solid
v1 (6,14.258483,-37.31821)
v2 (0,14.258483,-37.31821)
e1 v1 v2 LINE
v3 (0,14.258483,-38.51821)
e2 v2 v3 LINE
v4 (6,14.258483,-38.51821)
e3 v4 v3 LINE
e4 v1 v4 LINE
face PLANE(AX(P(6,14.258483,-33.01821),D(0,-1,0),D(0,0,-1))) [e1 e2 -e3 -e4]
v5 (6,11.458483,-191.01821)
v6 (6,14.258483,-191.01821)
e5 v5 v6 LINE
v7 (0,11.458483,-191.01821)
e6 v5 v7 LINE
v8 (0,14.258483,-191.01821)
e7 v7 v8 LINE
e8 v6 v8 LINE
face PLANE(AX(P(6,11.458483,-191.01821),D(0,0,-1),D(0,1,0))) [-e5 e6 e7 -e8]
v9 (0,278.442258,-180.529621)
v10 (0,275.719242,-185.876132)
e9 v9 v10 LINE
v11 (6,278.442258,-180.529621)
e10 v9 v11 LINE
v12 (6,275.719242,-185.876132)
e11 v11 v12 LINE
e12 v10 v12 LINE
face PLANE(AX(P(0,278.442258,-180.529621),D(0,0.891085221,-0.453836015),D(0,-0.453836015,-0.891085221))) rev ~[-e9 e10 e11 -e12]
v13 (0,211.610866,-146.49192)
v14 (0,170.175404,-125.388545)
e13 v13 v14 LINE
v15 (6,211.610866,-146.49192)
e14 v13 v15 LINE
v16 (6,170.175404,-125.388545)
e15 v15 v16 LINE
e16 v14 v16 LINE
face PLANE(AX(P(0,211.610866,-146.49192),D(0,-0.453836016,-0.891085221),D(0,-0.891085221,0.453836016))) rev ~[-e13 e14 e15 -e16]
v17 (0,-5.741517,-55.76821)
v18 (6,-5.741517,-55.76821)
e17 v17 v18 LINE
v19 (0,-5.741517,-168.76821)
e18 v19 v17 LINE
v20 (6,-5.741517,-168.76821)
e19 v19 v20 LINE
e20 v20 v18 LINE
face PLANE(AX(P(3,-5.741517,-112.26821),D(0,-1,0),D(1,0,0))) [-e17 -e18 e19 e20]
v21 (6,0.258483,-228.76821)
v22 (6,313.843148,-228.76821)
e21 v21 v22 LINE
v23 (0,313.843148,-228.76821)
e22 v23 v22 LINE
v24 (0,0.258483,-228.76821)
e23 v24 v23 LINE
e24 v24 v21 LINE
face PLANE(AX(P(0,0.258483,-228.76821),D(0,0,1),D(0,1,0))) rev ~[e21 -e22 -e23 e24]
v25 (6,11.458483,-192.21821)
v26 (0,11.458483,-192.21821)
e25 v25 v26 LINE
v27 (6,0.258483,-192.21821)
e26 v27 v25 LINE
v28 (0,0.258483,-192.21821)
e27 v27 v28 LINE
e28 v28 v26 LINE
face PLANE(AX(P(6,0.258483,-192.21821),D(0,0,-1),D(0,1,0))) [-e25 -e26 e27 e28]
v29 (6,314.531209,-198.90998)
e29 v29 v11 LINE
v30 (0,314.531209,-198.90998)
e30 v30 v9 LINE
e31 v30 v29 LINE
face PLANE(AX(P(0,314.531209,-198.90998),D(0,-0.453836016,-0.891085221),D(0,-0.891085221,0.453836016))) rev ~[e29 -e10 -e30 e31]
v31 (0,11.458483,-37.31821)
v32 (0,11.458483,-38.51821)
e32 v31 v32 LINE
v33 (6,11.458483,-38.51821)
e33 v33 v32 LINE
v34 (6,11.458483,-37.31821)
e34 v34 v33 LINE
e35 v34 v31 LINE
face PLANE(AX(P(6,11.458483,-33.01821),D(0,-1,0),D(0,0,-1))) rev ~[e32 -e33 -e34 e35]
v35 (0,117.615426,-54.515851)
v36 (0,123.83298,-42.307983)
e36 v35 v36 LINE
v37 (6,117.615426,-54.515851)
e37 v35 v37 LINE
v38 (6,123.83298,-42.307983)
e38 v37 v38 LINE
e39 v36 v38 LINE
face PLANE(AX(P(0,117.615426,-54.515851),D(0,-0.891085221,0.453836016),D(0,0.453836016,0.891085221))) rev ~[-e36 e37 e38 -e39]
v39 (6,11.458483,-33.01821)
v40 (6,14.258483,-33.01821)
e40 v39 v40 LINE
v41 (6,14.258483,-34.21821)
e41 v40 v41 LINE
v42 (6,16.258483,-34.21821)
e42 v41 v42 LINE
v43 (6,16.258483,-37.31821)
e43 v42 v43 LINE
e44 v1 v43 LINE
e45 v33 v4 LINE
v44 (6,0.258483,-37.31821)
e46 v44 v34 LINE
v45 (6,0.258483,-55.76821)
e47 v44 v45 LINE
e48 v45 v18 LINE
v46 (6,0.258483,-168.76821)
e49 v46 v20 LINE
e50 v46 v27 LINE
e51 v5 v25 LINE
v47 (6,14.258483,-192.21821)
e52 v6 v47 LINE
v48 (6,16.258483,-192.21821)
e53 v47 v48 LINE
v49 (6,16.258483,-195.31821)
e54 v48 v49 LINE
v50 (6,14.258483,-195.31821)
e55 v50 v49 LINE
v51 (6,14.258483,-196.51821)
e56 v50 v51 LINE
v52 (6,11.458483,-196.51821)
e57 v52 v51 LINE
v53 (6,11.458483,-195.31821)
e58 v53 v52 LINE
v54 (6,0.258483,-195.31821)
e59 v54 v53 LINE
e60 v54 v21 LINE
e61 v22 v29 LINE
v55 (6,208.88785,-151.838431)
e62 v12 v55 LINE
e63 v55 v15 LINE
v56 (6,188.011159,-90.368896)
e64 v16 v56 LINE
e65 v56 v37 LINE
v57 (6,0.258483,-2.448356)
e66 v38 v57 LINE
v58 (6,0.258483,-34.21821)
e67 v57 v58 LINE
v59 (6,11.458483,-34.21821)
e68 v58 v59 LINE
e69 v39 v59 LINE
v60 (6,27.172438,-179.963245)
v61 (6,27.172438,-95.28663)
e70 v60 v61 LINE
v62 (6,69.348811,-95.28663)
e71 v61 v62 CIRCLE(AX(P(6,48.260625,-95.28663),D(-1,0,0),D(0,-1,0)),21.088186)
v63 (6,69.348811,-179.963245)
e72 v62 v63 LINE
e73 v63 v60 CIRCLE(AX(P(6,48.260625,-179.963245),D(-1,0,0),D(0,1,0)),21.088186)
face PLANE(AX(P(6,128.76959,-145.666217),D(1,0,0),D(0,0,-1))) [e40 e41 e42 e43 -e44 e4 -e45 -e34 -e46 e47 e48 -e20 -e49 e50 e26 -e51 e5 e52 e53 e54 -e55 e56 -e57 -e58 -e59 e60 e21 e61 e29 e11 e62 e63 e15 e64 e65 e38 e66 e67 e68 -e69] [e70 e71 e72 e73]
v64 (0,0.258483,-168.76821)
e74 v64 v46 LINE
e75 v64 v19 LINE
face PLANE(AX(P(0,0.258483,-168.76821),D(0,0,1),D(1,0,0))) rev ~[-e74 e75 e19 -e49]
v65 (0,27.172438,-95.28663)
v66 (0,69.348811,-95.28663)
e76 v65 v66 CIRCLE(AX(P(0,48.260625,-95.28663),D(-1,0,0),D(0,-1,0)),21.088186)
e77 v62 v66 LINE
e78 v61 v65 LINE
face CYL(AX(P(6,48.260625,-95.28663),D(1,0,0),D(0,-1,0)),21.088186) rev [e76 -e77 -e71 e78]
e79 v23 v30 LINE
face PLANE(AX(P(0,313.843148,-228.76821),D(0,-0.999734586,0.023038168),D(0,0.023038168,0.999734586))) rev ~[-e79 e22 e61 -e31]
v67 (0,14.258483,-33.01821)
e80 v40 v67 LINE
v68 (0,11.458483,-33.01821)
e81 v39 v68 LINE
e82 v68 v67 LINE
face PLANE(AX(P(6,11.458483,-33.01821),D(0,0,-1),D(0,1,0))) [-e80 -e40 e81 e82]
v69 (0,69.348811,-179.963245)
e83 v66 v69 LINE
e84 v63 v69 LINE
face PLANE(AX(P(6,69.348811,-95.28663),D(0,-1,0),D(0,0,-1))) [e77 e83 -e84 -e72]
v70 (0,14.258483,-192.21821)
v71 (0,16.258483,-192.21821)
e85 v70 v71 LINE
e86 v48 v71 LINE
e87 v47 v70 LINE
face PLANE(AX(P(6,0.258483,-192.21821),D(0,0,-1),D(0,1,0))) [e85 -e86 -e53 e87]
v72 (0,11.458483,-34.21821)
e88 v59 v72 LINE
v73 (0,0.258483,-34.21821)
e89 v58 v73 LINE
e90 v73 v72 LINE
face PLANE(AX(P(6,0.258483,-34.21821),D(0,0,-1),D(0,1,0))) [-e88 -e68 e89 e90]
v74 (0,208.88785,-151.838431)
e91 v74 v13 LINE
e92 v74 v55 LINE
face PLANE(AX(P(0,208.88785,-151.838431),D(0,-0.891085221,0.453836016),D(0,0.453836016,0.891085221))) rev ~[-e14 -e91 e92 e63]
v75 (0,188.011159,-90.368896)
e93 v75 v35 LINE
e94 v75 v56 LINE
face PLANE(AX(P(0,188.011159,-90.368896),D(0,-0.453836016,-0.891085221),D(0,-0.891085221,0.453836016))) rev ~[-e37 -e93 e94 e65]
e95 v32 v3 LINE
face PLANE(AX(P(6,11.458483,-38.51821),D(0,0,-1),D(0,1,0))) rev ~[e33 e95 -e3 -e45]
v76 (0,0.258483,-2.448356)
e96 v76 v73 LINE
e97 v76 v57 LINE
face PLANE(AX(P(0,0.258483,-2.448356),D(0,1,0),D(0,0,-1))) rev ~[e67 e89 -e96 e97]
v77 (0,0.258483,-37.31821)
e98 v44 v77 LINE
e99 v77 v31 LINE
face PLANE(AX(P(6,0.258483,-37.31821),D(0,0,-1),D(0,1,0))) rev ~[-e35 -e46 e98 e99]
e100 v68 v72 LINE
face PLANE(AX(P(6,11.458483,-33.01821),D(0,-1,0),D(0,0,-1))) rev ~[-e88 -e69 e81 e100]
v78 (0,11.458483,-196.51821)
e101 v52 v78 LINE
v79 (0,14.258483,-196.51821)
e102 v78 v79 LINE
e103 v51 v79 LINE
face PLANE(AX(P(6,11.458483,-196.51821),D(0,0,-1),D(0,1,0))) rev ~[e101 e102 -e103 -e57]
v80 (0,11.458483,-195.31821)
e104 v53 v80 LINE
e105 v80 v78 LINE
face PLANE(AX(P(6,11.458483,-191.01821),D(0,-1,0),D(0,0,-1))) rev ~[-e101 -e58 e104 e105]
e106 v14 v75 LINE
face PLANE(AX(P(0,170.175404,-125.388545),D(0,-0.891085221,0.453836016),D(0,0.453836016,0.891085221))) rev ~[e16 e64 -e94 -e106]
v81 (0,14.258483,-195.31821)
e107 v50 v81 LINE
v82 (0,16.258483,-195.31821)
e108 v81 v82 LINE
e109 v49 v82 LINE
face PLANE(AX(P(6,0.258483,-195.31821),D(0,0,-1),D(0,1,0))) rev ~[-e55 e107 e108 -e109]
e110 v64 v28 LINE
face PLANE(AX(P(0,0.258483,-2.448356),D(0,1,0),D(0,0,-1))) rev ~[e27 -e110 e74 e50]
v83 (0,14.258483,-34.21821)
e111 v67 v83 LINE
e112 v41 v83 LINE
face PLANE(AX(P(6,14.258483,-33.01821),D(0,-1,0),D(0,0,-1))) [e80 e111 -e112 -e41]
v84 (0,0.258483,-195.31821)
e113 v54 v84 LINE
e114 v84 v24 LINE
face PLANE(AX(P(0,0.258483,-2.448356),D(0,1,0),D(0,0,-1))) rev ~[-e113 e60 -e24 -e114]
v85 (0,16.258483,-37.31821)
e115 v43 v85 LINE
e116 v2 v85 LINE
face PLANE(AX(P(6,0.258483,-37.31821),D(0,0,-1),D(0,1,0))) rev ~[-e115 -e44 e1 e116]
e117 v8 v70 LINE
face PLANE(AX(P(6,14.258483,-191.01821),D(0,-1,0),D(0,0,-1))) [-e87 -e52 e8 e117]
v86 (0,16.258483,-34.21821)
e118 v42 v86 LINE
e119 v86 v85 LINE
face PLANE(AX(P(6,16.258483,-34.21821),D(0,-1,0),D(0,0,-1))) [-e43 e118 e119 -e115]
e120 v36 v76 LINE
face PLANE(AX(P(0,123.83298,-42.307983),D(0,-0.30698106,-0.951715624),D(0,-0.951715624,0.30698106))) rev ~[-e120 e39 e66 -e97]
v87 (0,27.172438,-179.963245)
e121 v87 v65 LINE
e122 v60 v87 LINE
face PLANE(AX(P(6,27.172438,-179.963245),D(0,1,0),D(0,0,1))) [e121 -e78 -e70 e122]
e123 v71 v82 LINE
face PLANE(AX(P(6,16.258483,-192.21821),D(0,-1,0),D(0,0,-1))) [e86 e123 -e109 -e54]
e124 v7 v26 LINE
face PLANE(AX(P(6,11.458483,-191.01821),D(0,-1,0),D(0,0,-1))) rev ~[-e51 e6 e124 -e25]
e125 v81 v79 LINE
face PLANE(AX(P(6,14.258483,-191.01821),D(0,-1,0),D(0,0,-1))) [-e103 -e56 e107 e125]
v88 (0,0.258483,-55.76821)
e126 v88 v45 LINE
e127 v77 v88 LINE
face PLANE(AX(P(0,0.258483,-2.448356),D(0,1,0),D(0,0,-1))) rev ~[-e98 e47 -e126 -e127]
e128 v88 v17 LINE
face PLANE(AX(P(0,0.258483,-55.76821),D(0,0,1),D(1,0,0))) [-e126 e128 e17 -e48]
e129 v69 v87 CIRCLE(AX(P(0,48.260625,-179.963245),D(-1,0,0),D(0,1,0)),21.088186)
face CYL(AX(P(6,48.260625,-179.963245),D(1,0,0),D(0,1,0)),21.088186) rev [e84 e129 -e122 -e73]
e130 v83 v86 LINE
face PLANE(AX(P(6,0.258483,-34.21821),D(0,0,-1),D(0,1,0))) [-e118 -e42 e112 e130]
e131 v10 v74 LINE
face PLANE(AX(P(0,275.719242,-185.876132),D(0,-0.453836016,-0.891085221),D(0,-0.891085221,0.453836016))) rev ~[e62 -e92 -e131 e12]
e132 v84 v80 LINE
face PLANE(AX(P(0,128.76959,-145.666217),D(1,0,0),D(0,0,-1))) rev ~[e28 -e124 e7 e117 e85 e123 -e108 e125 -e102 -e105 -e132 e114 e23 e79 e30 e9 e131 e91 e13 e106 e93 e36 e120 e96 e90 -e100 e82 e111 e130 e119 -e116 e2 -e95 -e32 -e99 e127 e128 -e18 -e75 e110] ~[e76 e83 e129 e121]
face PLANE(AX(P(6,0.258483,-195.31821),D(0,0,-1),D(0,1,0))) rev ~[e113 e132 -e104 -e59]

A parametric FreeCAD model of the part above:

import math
import FreeCAD as App
import Part
import Sketcher

V = App.Vector
Q = App.Units.Quantity

doc = App.newDocument("Part")
body = doc.addObject("PartDesign::Body", "Body")

# Sketch on YZ plane
sketch1 = doc.addObject("Sketcher::SketchObject", "Sketch")
body.addObject(sketch1)
sketch1.AttachmentSupport = (doc.YZ_Plane, [""])
sketch1.MapMode = "FlatFace"
sketch1.addGeometry([
    Part.LineSegment(V(123.83298, -42.307983, 0), V(0.258483, -2.448356, 0)),  # 0
    Part.LineSegment(V(0.258483, -2.448356, 0), V(0.258483, -228.76821, 0)),  # 1
    Part.LineSegment(V(0.258483, -228.76821, 0), V(313.843148, -228.76821, 0)),  # 2
    Part.LineSegment(V(313.843148, -228.76821, 0), V(314.531209, -198.90998, 0)),  # 3
    Part.LineSegment(V(314.531209, -198.90998, 0), V(278.442258, -180.529621, 0)),  # 4
    Part.LineSegment(V(278.442258, -180.529621, 0), V(275.719242, -185.876132, 0)),  # 5
    Part.LineSegment(V(275.719242, -185.876132, 0), V(208.88785, -151.838431, 0)),  # 6
    Part.LineSegment(V(208.88785, -151.838431, 0), V(211.610866, -146.49192, 0)),  # 7
    Part.LineSegment(V(211.610866, -146.49192, 0), V(170.175404, -125.388545, 0)),  # 8
    Part.LineSegment(V(170.175404, -125.388545, 0), V(188.011159, -90.368896, 0)),  # 9
    Part.LineSegment(V(188.011159, -90.368896, 0), V(117.615426, -54.515851, 0)),  # 10
    Part.LineSegment(V(117.615426, -54.515851, 0), V(123.83298, -42.307983, 0)),  # 11
], False)
sketch1.addConstraint([
    Sketcher.Constraint("Coincident", 0, 2, 1, 1),
    Sketcher.Constraint("Coincident", 1, 2, 2, 1),
    Sketcher.Constraint("Coincident", 2, 2, 3, 1),
    Sketcher.Constraint("Coincident", 3, 2, 4, 1),
    Sketcher.Constraint("Coincident", 4, 2, 5, 1),
    Sketcher.Constraint("Coincident", 5, 2, 6, 1),
    Sketcher.Constraint("Coincident", 6, 2, 7, 1),
    Sketcher.Constraint("Coincident", 7, 2, 8, 1),
    Sketcher.Constraint("Coincident", 8, 2, 9, 1),
    Sketcher.Constraint("Coincident", 9, 2, 10, 1),
    Sketcher.Constraint("Coincident", 10, 2, 11, 1),
    Sketcher.Constraint("Coincident", 11, 2, 0, 1),
    Sketcher.Constraint("Vertical", 1),
    Sketcher.Constraint("Horizontal", 2),
    Sketcher.Constraint("Perpendicular", 4, 5),
    Sketcher.Constraint("Perpendicular", 5, 6),
    Sketcher.Constraint("Perpendicular", 6, 7),
    Sketcher.Constraint("Perpendicular", 7, 8),
    Sketcher.Constraint("Perpendicular", 8, 9),
    Sketcher.Constraint("Perpendicular", 9, 10),
    Sketcher.Constraint("Perpendicular", 10, 11),
    Sketcher.Constraint("Equal", 5, 7),
    Sketcher.Constraint("Distance", 5, Q("6 mm")),
    Sketcher.Constraint("Distance", 6, Q("75 mm")),
    Sketcher.Constraint("Distance", 10, Q("79 mm")),
    Sketcher.Constraint("Distance", 4, Q("40.5 mm")),
    Sketcher.Constraint("Distance", 8, Q("46.5 mm")),
    Sketcher.Constraint("Distance", 9, Q("39.3 mm")),
    Sketcher.Constraint("Distance", 11, Q("13.7 mm")),
    Sketcher.Constraint("DistanceY", 5, 2, 6, 2, Q("34.037701 mm")),
    Sketcher.Constraint("Distance", 0, Q("129.84393 mm")),
    Sketcher.Constraint("DistanceX", 2, 1, 2, 2, Q("313.584664 mm")),
    Sketcher.Constraint("DistanceY", 1, 2, 1, 1, Q("226.319854 mm")),
    Sketcher.Constraint("DistanceY", 1, 2, -1, 1, Q("228.76821 mm")),
    Sketcher.Constraint("DistanceX", -1, 1, 3, 2, Q("314.531209 mm")),
    Sketcher.Constraint("DistanceY", 3, 2, -1, 1, Q("198.90998 mm")),
])
pad1 = doc.addObject("PartDesign::Pad", "Pad")
body.addObject(pad1)
pad1.Profile = sketch1
pad1.Length = 6

# Sketch on YZ plane
sketch2 = doc.addObject("Sketcher::SketchObject", "Sketch001")
body.addObject(sketch2)
sketch2.AttachmentSupport = (doc.YZ_Plane, [""])
sketch2.MapMode = "FlatFace"
sketch2.AttachmentOffset = App.Placement(V(0, 0, 6), App.Rotation())
sketch2.addGeometry([
    Part.LineSegment(V(69.348811, -179.963245, 0), V(69.348811, -95.28663, 0)),
    Part.ArcOfCircle(Part.Circle(V(48.260625, -95.28663, 0), V(0, 0, 1), 21.088186), math.radians(0), math.radians(180)),
    Part.LineSegment(V(27.172438, -95.28663, 0), V(27.172438, -179.963245, 0)),
    Part.ArcOfCircle(Part.Circle(V(48.260625, -179.963245, 0), V(0, 0, 1), 21.088186), math.radians(180), math.radians(360)),
], False)
sketch2.addConstraint([
    Sketcher.Constraint("Tangent", 0, 2, 1, 1),
    Sketcher.Constraint("Tangent", 1, 2, 2, 1),
    Sketcher.Constraint("Tangent", 2, 2, 3, 1),
    Sketcher.Constraint("Tangent", 3, 2, 0, 1),
    Sketcher.Constraint("Vertical", 0),
    Sketcher.Constraint("Vertical", 2),
    Sketcher.Constraint("Radius", 1, Q("21.088186 mm")),
    Sketcher.Constraint("DistanceY", 0, 1, 0, 2, Q("84.676615 mm")),
    Sketcher.Constraint("DistanceY", 1, 3, -1, 1, Q("95.28663 mm")),
    Sketcher.Constraint("DistanceX", -1, 1, 0, 2, Q("69.348811 mm")),
])
pocket1 = doc.addObject("PartDesign::Pocket", "Pocket")
body.addObject(pocket1)
pocket1.Profile = sketch2
pocket1.Length = 6

# Sketch on XZ plane
sketch3 = doc.addObject("Sketcher::SketchObject", "Sketch002")
body.addObject(sketch3)
sketch3.AttachmentSupport = (doc.XZ_Plane, [""])
sketch3.MapMode = "FlatFace"
sketch3.AttachmentOffset = App.Placement(V(0, 0, -0.258483), App.Rotation())
sketch3.addGeometry([
    Part.LineSegment(V(0, -55.76821, 0), V(0, -168.76821, 0)),
    Part.LineSegment(V(0, -168.76821, 0), V(6, -168.76821, 0)),
    Part.LineSegment(V(6, -168.76821, 0), V(6, -55.76821, 0)),
    Part.LineSegment(V(6, -55.76821, 0), V(0, -55.76821, 0)),
], False)
sketch3.addConstraint([
    Sketcher.Constraint("Coincident", 0, 2, 1, 1),
    Sketcher.Constraint("Coincident", 1, 2, 2, 1),
    Sketcher.Constraint("Coincident", 2, 2, 3, 1),
    Sketcher.Constraint("Coincident", 3, 2, 0, 1),
    Sketcher.Constraint("Vertical", 0),
    Sketcher.Constraint("Horizontal", 1),
    Sketcher.Constraint("Vertical", 2),
    Sketcher.Constraint("Horizontal", 3),
    Sketcher.Constraint("PointOnObject", 0, 2, -2),
    Sketcher.Constraint("DistanceX", 1, 1, 1, 2, Q("6 mm")),
    Sketcher.Constraint("DistanceY", 0, 2, 0, 1, Q("113 mm")),
    Sketcher.Constraint("DistanceY", 0, 2, -1, 1, Q("168.76821 mm")),
])
pad2 = doc.addObject("PartDesign::Pad", "Pad001")
body.addObject(pad2)
pad2.Profile = sketch3
pad2.Length = 6

# Sketch on YZ plane
sketch4 = doc.addObject("Sketcher::SketchObject", "Sketch003")
body.addObject(sketch4)
sketch4.AttachmentSupport = (doc.YZ_Plane, [""])
sketch4.MapMode = "FlatFace"
sketch4.AttachmentOffset = App.Placement(V(0, 0, 6), App.Rotation())
sketch4.addGeometry([
    Part.LineSegment(V(16.258483, -34.21821, 0), V(0.258483, -34.21821, 0)),  # 0
    Part.LineSegment(V(0.258483, -34.21821, 0), V(0.258483, -37.31821, 0)),  # 1
    Part.LineSegment(V(0.258483, -37.31821, 0), V(16.258483, -37.31821, 0)),  # 2
    Part.LineSegment(V(16.258483, -37.31821, 0), V(16.258483, -34.21821, 0)),  # 3
    Part.LineSegment(V(16.258483, -192.21821, 0), V(0.258483, -192.21821, 0)),  # 4
    Part.LineSegment(V(0.258483, -192.21821, 0), V(0.258483, -195.31821, 0)),  # 5
    Part.LineSegment(V(0.258483, -195.31821, 0), V(16.258483, -195.31821, 0)),  # 6
    Part.LineSegment(V(16.258483, -195.31821, 0), V(16.258483, -192.21821, 0)),  # 7
], False)
sketch4.addConstraint([
    Sketcher.Constraint("Coincident", 0, 2, 1, 1),
    Sketcher.Constraint("Coincident", 1, 2, 2, 1),
    Sketcher.Constraint("Coincident", 2, 2, 3, 1),
    Sketcher.Constraint("Coincident", 3, 2, 0, 1),
    Sketcher.Constraint("Coincident", 4, 2, 5, 1),
    Sketcher.Constraint("Coincident", 5, 2, 6, 1),
    Sketcher.Constraint("Coincident", 6, 2, 7, 1),
    Sketcher.Constraint("Coincident", 7, 2, 4, 1),
    Sketcher.Constraint("Horizontal", 0),
    Sketcher.Constraint("Vertical", 1),
    Sketcher.Constraint("Horizontal", 2),
    Sketcher.Constraint("Vertical", 3),
    Sketcher.Constraint("Horizontal", 4),
    Sketcher.Constraint("Vertical", 5),
    Sketcher.Constraint("Horizontal", 6),
    Sketcher.Constraint("Vertical", 7),
    Sketcher.Constraint("Vertical", 1, 2, 4, 2),
    Sketcher.Constraint("Vertical", 3, 2, 6, 2),
    Sketcher.Constraint("Equal", 3, 5),
    Sketcher.Constraint("DistanceX", 0, 2, 0, 1, Q("16 mm")),
    Sketcher.Constraint("DistanceY", 1, 2, 1, 1, Q("3.1 mm")),
    Sketcher.Constraint("DistanceY", 4, 2, 0, 2, Q("158 mm")),
    Sketcher.Constraint("DistanceY", 0, 2, -1, 1, Q("34.21821 mm")),
    Sketcher.Constraint("DistanceX", -1, 1, 0, 2, Q("0.258483 mm")),
])
pocket2 = doc.addObject("PartDesign::Pocket", "Pocket001")
body.addObject(pocket2)
pocket2.Profile = sketch4
pocket2.Length = 6

# Sketch on YZ plane
sketch5 = doc.addObject("Sketcher::SketchObject", "Sketch004")
body.addObject(sketch5)
sketch5.AttachmentSupport = (doc.YZ_Plane, [""])
sketch5.MapMode = "FlatFace"
sketch5.AttachmentOffset = App.Placement(V(0, 0, 6), App.Rotation())
sketch5.addGeometry([
    Part.LineSegment(V(14.258483, -33.01821, 0), V(11.458483, -33.01821, 0)),  # 0
    Part.LineSegment(V(11.458483, -33.01821, 0), V(11.458483, -38.51821, 0)),  # 1
    Part.LineSegment(V(11.458483, -38.51821, 0), V(14.258483, -38.51821, 0)),  # 2
    Part.LineSegment(V(14.258483, -38.51821, 0), V(14.258483, -33.01821, 0)),  # 3
    Part.LineSegment(V(14.258483, -191.01821, 0), V(11.458483, -191.01821, 0)),  # 4
    Part.LineSegment(V(11.458483, -191.01821, 0), V(11.458483, -196.51821, 0)),  # 5
    Part.LineSegment(V(11.458483, -196.51821, 0), V(14.258483, -196.51821, 0)),  # 6
    Part.LineSegment(V(14.258483, -196.51821, 0), V(14.258483, -191.01821, 0)),  # 7
], False)
sketch5.addConstraint([
    Sketcher.Constraint("Coincident", 0, 2, 1, 1),
    Sketcher.Constraint("Coincident", 1, 2, 2, 1),
    Sketcher.Constraint("Coincident", 2, 2, 3, 1),
    Sketcher.Constraint("Coincident", 3, 2, 0, 1),
    Sketcher.Constraint("Coincident", 4, 2, 5, 1),
    Sketcher.Constraint("Coincident", 5, 2, 6, 1),
    Sketcher.Constraint("Coincident", 6, 2, 7, 1),
    Sketcher.Constraint("Coincident", 7, 2, 4, 1),
    Sketcher.Constraint("Horizontal", 0),
    Sketcher.Constraint("Vertical", 1),
    Sketcher.Constraint("Horizontal", 2),
    Sketcher.Constraint("Vertical", 3),
    Sketcher.Constraint("Horizontal", 4),
    Sketcher.Constraint("Vertical", 5),
    Sketcher.Constraint("Horizontal", 6),
    Sketcher.Constraint("Vertical", 7),
    Sketcher.Constraint("Vertical", 1, 2, 4, 2),
    Sketcher.Constraint("Vertical", 3, 2, 6, 2),
    Sketcher.Constraint("Equal", 3, 5),
    Sketcher.Constraint("DistanceX", 0, 2, 0, 1, Q("2.8 mm")),
    Sketcher.Constraint("DistanceY", 1, 2, 1, 1, Q("5.5 mm")),
    Sketcher.Constraint("DistanceY", 4, 2, 0, 2, Q("158 mm")),
    Sketcher.Constraint("DistanceY", 0, 2, -1, 1, Q("33.01821 mm")),
    Sketcher.Constraint("DistanceX", -1, 1, 0, 2, Q("11.458483 mm")),
])
pocket3 = doc.addObject("PartDesign::Pocket", "Pocket002")
body.addObject(pocket3)
pocket3.Profile = sketch5
pocket3.Length = 6

doc.recompute()
